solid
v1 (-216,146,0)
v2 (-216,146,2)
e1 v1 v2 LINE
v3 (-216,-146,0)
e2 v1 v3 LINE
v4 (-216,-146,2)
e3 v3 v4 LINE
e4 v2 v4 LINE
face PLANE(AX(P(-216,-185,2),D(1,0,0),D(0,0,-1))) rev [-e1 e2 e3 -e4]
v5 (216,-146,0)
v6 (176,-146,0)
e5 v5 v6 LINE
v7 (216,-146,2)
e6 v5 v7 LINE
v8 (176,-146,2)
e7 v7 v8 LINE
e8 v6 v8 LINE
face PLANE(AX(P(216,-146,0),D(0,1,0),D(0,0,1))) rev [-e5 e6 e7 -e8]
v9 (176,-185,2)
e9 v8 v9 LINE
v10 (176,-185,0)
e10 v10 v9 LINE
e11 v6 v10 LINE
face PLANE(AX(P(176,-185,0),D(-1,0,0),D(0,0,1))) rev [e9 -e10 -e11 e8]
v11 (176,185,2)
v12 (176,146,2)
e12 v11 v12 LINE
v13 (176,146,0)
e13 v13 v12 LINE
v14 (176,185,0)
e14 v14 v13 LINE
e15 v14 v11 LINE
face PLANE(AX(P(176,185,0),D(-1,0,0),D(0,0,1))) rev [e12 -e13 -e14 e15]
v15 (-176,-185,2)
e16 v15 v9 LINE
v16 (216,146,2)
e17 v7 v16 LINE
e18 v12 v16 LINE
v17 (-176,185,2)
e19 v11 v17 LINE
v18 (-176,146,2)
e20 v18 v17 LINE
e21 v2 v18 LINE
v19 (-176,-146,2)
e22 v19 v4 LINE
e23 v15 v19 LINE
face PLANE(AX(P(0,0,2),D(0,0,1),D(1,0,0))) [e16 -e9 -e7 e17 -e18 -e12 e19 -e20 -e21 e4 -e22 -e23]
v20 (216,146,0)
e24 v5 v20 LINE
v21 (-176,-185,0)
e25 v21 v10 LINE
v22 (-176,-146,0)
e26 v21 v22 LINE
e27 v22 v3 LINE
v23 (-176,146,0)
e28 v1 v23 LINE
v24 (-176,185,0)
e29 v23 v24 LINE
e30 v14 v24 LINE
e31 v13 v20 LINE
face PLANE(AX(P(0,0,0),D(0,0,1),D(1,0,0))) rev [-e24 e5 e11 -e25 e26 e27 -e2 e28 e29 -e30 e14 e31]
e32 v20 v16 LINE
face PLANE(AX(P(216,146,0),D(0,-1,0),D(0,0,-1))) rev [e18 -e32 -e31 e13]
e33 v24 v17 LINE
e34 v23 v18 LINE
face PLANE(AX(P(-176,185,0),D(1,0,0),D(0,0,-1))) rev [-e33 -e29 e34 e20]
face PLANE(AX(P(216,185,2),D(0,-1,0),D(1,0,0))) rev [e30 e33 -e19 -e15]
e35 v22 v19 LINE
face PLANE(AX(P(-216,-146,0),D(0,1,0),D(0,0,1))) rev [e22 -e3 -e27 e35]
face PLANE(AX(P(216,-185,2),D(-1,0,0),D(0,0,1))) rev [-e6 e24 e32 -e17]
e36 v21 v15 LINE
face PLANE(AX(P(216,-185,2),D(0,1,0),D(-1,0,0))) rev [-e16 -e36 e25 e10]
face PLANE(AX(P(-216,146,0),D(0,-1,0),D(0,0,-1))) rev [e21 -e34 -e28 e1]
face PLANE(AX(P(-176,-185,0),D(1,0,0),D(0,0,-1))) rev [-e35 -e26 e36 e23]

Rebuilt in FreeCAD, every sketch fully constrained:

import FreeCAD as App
import Part
import Sketcher

V = App.Vector
Q = App.Units.Quantity

doc = App.newDocument("Part")
body = doc.addObject("PartDesign::Body", "Body")

# Sketch on XY plane
sketch1 = body.newObject("Sketcher::SketchObject", "Sketch")
sketch1.AttachmentSupport = (doc.getObject("XY_Plane"), [""])
sketch1.MapMode = "FlatFace"
sketch1.addGeometry([
    Part.LineSegment(V(-216, 185, 0), V(-216, -185, 0)),
    Part.LineSegment(V(-216, -185, 0), V(216, -185, 0)),
    Part.LineSegment(V(216, -185, 0), V(216, 185, 0)),
    Part.LineSegment(V(216, 185, 0), V(-216, 185, 0)),
], False)
sketch1.addConstraint([
    Sketcher.Constraint("Coincident", 0, 2, 1, 1),
    Sketcher.Constraint("Coincident", 1, 2, 2, 1),
    Sketcher.Constraint("Coincident", 2, 2, 3, 1),
    Sketcher.Constraint("Coincident", 3, 2, 0, 1),
    Sketcher.Constraint("Vertical", 0),
    Sketcher.Constraint("Horizontal", 1),
    Sketcher.Constraint("Vertical", 2),
    Sketcher.Constraint("Horizontal", 3),
    Sketcher.Constraint("Symmetric", 0, 2, 2, 2, -1, 1),
    Sketcher.Constraint("DistanceX", 1, 1, 1, 2, Q("432 mm")),
    Sketcher.Constraint("DistanceY", 0, 2, 0, 1, Q("370 mm")),
])
pad1 = body.newObject("PartDesign::Pad", "Pad")
pad1.Profile = sketch1
pad1.Length = 2

# Sketch on XY plane
sketch2 = body.newObject("Sketcher::SketchObject", "Sketch001")
sketch2.AttachmentSupport = (doc.getObject("XY_Plane"), [""])
sketch2.MapMode = "FlatFace"
sketch2.AttachmentOffset = App.Placement(V(0, 0, 2), App.Rotation())
sketch2.addGeometry([
    Part.LineSegment(V(-216, 185, 0), V(-216, 146, 0)),  # 0
    Part.LineSegment(V(-216, 146, 0), V(-176, 146, 0)),  # 1
    Part.LineSegment(V(-176, 146, 0), V(-176, 185, 0)),  # 2
    Part.LineSegment(V(-176, 185, 0), V(-216, 185, 0)),  # 3
    Part.LineSegment(V(176, 185, 0), V(176, 146, 0)),  # 4
    Part.LineSegment(V(176, 146, 0), V(216, 146, 0)),  # 5
    Part.LineSegment(V(216, 146, 0), V(216, 185, 0)),  # 6
    Part.LineSegment(V(216, 185, 0), V(176, 185, 0)),  # 7
    Part.LineSegment(V(176, -146, 0), V(176, -185, 0)),  # 8
    Part.LineSegment(V(176, -185, 0), V(216, -185, 0)),  # 9
    Part.LineSegment(V(216, -185, 0), V(216, -146, 0)),  # 10
    Part.LineSegment(V(216, -146, 0), V(176, -146, 0)),  # 11
    Part.LineSegment(V(-216, -146, 0), V(-216, -185, 0)),  # 12
    Part.LineSegment(V(-216, -185, 0), V(-176, -185, 0)),  # 13
    Part.LineSegment(V(-176, -185, 0), V(-176, -146, 0)),  # 14
    Part.LineSegment(V(-176, -146, 0), V(-216, -146, 0)),  # 15
], False)
sketch2.addConstraint([
    Sketcher.Constraint("Coincident", 0, 2, 1, 1),
    Sketcher.Constraint("Coincident", 1, 2, 2, 1),
    Sketcher.Constraint("Coincident", 2, 2, 3, 1),
    Sketcher.Constraint("Coincident", 3, 2, 0, 1),
    Sketcher.Constraint("Coincident", 4, 2, 5, 1),
    Sketcher.Constraint("Coincident", 5, 2, 6, 1),
    Sketcher.Constraint("Coincident", 6, 2, 7, 1),
    Sketcher.Constraint("Coincident", 7, 2, 4, 1),
    Sketcher.Constraint("Coincident", 8, 2, 9, 1),
    Sketcher.Constraint("Coincident", 9, 2, 10, 1),
    Sketcher.Constraint("Coincident", 10, 2, 11, 1),
    Sketcher.Constraint("Coincident", 11, 2, 8, 1),
    Sketcher.Constraint("Coincident", 12, 2, 13, 1),
    Sketcher.Constraint("Coincident", 13, 2, 14, 1),
    Sketcher.Constraint("Coincident", 14, 2, 15, 1),
    Sketcher.Constraint("Coincident", 15, 2, 12, 1),
    Sketcher.Constraint("Vertical", 0),
    Sketcher.Constraint("Horizontal", 1),
    Sketcher.Constraint("Vertical", 2),
    Sketcher.Constraint("Horizontal", 3),
    Sketcher.Constraint("Vertical", 4),
    Sketcher.Constraint("Horizontal", 5),
    Sketcher.Constraint("Vertical", 6),
    Sketcher.Constraint("Horizontal", 7),
    Sketcher.Constraint("Vertical", 8),
    Sketcher.Constraint("Horizontal", 9),
    Sketcher.Constraint("Vertical", 10),
    Sketcher.Constraint("Horizontal", 11),
    Sketcher.Constraint("Vertical", 12),
    Sketcher.Constraint("Horizontal", 13),
    Sketcher.Constraint("Vertical", 14),
    Sketcher.Constraint("Horizontal", 15),
    Sketcher.Constraint("Symmetric", 2, 2, 8, 2, -1, 1),
    Sketcher.Constraint("Symmetric", 0, 2, 10, 2, -1, 1),
    Sketcher.Constraint("Symmetric", 6, 2, 12, 2, -1, 1),
    Sketcher.Constraint("Symmetric", 4, 2, 14, 2, -1, 1),
    Sketcher.Constraint("Symmetric", 1, 2, 4, 2, -2),
    Sketcher.Constraint("Symmetric", 3, 2, 6, 2, -2),
    Sketcher.Constraint("DistanceX", 1, 1, 1, 2, Q("40 mm")),
    Sketcher.Constraint("DistanceY", 0, 2, 0, 1, Q("39 mm")),
    Sketcher.Constraint("DistanceX", 0, 2, -1, 1, Q("216 mm")),
    Sketcher.Constraint("DistanceY", -1, 1, 0, 2, Q("146 mm")),
])
pocket1 = body.newObject("PartDesign::Pocket", "Pocket")
pocket1.Profile = sketch2
pocket1.Type = "ThroughAll"

doc.recompute()
